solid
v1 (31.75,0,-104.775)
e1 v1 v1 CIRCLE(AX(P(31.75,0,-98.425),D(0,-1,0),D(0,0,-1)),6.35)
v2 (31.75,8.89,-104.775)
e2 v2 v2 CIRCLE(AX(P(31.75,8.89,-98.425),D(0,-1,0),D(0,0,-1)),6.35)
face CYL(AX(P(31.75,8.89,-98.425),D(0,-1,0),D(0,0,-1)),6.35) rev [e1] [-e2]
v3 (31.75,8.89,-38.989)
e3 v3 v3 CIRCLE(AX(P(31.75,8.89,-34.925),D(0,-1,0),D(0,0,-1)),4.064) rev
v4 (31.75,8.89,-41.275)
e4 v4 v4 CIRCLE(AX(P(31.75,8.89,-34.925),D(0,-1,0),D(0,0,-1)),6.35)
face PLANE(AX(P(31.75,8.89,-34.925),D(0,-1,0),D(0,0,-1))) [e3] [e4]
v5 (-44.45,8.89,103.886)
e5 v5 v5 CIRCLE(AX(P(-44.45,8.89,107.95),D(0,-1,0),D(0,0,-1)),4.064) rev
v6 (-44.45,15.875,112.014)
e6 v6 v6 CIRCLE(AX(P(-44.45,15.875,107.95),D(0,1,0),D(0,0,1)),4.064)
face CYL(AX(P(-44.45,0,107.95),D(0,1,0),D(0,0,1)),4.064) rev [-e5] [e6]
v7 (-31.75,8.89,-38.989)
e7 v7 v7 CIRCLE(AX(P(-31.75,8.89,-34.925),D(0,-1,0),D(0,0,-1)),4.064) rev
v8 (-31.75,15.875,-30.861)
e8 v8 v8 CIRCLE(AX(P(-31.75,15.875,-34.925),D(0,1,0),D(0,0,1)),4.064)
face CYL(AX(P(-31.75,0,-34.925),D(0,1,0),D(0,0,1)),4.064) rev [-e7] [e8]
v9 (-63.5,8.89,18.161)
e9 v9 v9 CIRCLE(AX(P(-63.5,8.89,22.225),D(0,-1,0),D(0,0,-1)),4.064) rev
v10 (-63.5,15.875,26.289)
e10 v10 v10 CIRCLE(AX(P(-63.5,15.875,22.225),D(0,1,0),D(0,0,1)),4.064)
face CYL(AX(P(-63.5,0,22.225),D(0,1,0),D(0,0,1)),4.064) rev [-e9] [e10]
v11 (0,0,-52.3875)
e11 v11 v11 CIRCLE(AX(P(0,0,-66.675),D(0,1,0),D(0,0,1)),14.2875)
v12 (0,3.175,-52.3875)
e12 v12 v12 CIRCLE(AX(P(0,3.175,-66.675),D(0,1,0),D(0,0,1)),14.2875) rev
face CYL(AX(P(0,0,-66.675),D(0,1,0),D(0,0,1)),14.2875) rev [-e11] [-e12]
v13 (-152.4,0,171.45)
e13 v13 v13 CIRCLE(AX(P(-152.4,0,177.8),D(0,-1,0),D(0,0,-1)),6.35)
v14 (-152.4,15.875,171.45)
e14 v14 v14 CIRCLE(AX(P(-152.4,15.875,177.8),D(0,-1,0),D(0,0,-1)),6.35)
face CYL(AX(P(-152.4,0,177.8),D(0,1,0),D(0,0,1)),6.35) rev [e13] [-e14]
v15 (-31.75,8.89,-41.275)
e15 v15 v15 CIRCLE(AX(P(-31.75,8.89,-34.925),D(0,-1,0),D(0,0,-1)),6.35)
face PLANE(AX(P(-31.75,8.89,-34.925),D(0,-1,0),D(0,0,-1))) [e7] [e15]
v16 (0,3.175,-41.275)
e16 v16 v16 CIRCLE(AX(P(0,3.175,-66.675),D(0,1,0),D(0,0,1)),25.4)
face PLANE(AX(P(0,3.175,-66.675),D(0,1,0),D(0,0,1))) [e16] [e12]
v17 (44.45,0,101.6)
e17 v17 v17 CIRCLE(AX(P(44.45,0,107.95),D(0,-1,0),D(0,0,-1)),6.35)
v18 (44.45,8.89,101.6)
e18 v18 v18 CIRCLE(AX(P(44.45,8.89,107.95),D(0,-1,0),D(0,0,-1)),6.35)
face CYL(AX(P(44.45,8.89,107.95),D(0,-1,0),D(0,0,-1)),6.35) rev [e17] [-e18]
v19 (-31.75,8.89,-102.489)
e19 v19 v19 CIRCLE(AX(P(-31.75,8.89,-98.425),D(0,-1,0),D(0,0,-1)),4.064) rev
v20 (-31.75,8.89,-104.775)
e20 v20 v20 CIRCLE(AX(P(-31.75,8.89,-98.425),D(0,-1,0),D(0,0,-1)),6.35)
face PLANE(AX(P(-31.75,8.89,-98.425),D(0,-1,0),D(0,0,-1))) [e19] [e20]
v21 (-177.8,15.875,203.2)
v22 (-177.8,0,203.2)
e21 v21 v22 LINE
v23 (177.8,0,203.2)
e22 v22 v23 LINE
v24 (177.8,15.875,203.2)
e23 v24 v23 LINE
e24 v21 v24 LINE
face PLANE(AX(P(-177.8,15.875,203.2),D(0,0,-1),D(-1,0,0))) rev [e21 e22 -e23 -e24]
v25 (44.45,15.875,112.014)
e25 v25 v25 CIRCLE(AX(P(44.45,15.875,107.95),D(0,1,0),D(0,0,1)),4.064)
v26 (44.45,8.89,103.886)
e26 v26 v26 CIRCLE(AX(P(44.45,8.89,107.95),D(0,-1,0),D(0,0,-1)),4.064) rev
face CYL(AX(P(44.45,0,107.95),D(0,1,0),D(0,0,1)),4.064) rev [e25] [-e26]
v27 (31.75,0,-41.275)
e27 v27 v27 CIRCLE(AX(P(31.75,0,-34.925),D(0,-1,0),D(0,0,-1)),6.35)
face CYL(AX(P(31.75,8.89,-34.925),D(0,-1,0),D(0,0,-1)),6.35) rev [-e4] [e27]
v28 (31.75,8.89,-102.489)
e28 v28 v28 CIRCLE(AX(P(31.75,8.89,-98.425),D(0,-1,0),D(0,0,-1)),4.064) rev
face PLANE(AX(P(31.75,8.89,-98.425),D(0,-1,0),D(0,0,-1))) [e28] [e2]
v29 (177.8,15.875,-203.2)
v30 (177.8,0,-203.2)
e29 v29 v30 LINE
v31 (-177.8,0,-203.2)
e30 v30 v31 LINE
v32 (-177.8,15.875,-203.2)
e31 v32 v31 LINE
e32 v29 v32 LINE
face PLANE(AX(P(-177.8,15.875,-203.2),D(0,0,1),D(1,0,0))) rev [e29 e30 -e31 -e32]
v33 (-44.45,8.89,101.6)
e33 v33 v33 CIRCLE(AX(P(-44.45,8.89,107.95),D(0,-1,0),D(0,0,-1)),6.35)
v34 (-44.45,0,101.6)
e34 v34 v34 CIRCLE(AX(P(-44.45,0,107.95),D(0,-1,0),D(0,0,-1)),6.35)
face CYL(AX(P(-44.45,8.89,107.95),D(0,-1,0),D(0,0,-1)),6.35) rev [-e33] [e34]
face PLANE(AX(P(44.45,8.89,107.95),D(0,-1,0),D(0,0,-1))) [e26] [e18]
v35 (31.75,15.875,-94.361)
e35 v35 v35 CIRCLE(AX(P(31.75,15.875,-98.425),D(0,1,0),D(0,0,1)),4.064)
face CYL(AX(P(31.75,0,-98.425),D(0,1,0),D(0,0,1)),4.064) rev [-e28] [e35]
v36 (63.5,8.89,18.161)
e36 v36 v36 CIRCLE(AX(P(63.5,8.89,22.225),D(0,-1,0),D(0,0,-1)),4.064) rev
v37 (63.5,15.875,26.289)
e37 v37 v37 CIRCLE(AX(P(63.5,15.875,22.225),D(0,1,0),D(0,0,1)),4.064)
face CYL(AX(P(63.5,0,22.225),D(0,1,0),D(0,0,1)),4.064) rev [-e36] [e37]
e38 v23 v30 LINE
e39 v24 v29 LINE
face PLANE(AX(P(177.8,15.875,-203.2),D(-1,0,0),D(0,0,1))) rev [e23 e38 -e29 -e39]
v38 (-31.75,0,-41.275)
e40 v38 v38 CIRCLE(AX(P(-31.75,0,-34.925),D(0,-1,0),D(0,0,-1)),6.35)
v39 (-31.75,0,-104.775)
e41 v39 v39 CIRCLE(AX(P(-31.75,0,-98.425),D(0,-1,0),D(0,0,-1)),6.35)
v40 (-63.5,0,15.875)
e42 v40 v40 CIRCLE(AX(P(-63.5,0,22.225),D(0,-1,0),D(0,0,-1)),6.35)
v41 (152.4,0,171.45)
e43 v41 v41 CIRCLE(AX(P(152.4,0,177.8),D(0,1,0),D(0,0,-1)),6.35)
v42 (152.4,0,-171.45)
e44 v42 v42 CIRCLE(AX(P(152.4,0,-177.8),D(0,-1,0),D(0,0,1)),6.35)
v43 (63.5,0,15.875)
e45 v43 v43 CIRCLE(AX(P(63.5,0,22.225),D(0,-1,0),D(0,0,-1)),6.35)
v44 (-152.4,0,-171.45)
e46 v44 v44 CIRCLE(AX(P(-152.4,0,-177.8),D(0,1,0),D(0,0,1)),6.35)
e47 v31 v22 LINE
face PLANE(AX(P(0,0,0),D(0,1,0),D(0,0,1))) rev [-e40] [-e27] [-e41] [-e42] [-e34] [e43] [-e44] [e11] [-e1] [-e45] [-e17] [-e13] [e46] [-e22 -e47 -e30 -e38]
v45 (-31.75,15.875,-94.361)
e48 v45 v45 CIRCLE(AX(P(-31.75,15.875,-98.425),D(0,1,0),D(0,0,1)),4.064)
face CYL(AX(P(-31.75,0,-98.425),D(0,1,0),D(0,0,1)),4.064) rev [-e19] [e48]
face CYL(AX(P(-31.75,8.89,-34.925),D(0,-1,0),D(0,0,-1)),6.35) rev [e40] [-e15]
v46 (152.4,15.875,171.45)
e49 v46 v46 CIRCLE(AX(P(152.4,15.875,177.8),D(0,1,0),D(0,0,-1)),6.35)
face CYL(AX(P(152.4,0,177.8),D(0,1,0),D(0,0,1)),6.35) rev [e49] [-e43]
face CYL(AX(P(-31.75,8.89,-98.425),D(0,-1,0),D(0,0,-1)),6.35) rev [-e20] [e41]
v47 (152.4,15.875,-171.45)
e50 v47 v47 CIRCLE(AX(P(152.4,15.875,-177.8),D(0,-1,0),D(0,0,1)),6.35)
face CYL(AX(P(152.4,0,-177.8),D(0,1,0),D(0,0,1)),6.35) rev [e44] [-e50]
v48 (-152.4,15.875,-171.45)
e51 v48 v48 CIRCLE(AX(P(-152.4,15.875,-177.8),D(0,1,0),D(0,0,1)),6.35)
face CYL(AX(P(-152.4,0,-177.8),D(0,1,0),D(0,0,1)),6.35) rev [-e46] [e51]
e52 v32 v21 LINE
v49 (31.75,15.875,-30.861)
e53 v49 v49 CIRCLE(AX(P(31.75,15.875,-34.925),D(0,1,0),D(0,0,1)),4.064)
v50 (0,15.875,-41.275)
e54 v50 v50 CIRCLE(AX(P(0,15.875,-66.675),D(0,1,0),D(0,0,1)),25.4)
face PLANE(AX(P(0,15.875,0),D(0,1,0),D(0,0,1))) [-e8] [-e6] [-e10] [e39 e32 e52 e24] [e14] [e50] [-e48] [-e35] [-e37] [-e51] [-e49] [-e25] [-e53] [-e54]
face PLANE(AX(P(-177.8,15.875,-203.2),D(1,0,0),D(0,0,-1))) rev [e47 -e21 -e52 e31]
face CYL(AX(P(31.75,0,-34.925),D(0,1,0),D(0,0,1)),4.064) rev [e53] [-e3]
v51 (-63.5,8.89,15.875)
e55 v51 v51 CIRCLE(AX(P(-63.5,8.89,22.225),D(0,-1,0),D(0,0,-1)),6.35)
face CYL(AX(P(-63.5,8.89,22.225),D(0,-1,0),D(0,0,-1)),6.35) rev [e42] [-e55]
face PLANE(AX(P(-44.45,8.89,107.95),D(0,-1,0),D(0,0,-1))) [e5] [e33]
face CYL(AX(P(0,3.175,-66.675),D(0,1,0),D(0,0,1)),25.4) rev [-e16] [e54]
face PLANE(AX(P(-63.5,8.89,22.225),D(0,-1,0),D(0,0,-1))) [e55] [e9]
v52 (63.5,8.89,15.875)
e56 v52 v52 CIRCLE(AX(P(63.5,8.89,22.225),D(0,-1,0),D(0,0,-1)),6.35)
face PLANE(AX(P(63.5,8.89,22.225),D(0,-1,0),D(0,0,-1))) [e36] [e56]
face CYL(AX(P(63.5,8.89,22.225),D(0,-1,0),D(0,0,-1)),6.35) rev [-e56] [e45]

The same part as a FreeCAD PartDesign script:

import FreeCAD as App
import Part
import Sketcher
from FreeCAD import Vector
Q = App.Units.Quantity


def add_polygon(sketch, points):
    """Adds a closed chain of lines whose ends are joined by coincident constraints."""
    first, n = sketch.GeometryCount, len(points)
    for a, b in zip(points, points[1:] + points[:1]):
        sketch.addGeometry(Part.LineSegment(App.Vector(*a, 0), App.Vector(*b, 0)), False)
    for i in range(n):
        sketch.addConstraint(Sketcher.Constraint("Coincident", first + i, 2, first + (i + 1) % n, 1))

doc = App.newDocument("Part")
params = doc.addObject("Spreadsheet::Sheet", "Params")
for row, (alias, value) in enumerate([
    ("sketch1_width", "14 in"),
    ("sketch1_height", "16 in"),
    ("pad1_length", "0.625 in"),
    ("sketch2_diameter", "0.5 in"),
    ("sketch3_diameter", "0.5 in"),
    ("sketch4_diameter", "0.32 in"),
    ("sketch4_diameter2", "1.125 in"),
    ("sketch5_diameter", "2 in"),
    ("pocket4_length", "0.5 in"),
    ("sketch6_diameter", "0.5 in"),
    ("pocket5_length", "0.35 in"),
], start=1):
    params.set(f"A{row}", alias)
    params.set(f"B{row}", "=" + value)
    params.setAlias(f"B{row}", alias)

body = doc.addObject("PartDesign::Body", "Body")

# Sketch on XZ plane
sketch1 = body.newObject("Sketcher::SketchObject", "Sketch")
sketch1.AttachmentSupport = (doc.getObject("XZ_Plane"), [""])
sketch1.MapMode = "FlatFace"
add_polygon(sketch1, [(-178, -203), (-178, 203), (178, 203), (178, -203)])  # lines 0-3
sketch1.addConstraint(Sketcher.Constraint("Vertical", 0))
sketch1.addConstraint(Sketcher.Constraint("Horizontal", 1))
sketch1.addConstraint(Sketcher.Constraint("Vertical", 2))
sketch1.addConstraint(Sketcher.Constraint("Horizontal", 3))
sketch1.addConstraint(Sketcher.Constraint("Symmetric", 0, 2, 2, 2, -1, 1))
sketch1.addConstraint(Sketcher.Constraint("DistanceX", 1, 1, 1, 2, Q("14 in")))
sketch1.addConstraint(Sketcher.Constraint("DistanceY", 0, 1, 0, 2, Q("16 in")))
sketch1.setExpression("Constraints[9]", "Params.sketch1_width")
sketch1.setExpression("Constraints[10]", "Params.sketch1_height")
pad1 = body.newObject("PartDesign::Pad", "Pad")
pad1.Profile = sketch1
pad1.setExpression("Length", "Params.pad1_length")
pad1.Reversed = True

# Sketch on XZ plane
sketch2 = body.newObject("Sketcher::SketchObject", "Sketch001")
sketch2.AttachmentSupport = (doc.getObject("XZ_Plane"), [""])
sketch2.MapMode = "FlatFace"
sketch2.AttachmentOffset = App.Placement(Vector(0, 0, -0.625 * 25.4), App.Rotation())
sketch2.addGeometry(Part.Circle(Vector(-152, -178, 0), Vector(0, 0, 1), 6), False)
sketch2.addConstraint(Sketcher.Constraint("Diameter", 0, Q("0.5 in")))
sketch2.addConstraint(Sketcher.Constraint("DistanceX", 0, 3, -1, 1, Q("6 in")))
sketch2.addConstraint(Sketcher.Constraint("DistanceY", 0, 3, -1, 1, Q("7 in")))
sketch2.setExpression("Constraints[0]", "Params.sketch2_diameter")
pocket1 = body.newObject("PartDesign::Pocket", "Pocket")
pocket1.Profile = sketch2
pocket1.Type = "ThroughAll"
pocket1.Reversed = True
doc.recompute()

mirrored = body.newObject("PartDesign::Mirrored", "Mirrored")
mirrored.Originals = [pocket1]
mirrored.MirrorPlane = (doc.getObject("YZ_Plane"), [""])
body.Tip = mirrored
doc.recompute()

mirrored2 = body.newObject("PartDesign::Mirrored", "Mirrored001")
mirrored2.Originals = [pocket1]
mirrored2.MirrorPlane = (doc.getObject("XY_Plane"), [""])
body.Tip = mirrored2

# Sketch on XZ plane
sketch3 = body.newObject("Sketcher::SketchObject", "Sketch002")
sketch3.AttachmentSupport = (doc.getObject("XZ_Plane"), [""])
sketch3.MapMode = "FlatFace"
sketch3.AttachmentOffset = App.Placement(Vector(0, 0, -0.625 * 25.4), App.Rotation())
sketch3.addGeometry(Part.Circle(Vector(152, 178, 0), Vector(0, 0, 1), 6), False)
sketch3.addConstraint(Sketcher.Constraint("Diameter", 0, Q("0.5 in")))
sketch3.addConstraint(Sketcher.Constraint("DistanceX", -1, 1, 0, 3, Q("6 in")))
sketch3.addConstraint(Sketcher.Constraint("DistanceY", -1, 1, 0, 3, Q("7 in")))
sketch3.setExpression("Constraints[0]", "Params.sketch3_diameter")
pocket2 = body.newObject("PartDesign::Pocket", "Pocket001")
pocket2.Profile = sketch3
pocket2.Type = "ThroughAll"
pocket2.Reversed = True

# Sketch on XZ plane
sketch4 = body.newObject("Sketcher::SketchObject", "Sketch003")
sketch4.AttachmentSupport = (doc.getObject("XZ_Plane"), [""])
sketch4.MapMode = "FlatFace"
sketch4.AttachmentOffset = App.Placement(Vector(0, 0, -0.625 * 25.4), App.Rotation())
sketch4.addGeometry(Part.Circle(Vector(0, -66.7, 0), Vector(0, 0, 1), 14.3), False)
sketch4.addGeometry(Part.Circle(Vector(-63.5, 22.2, 0), Vector(0, 0, 1), 4.1), False)
sketch4.addGeometry(Part.Circle(Vector(63.5, 22.2, 0), Vector(0, 0, 1), 4.1), False)
sketch4.addGeometry(Part.Circle(Vector(44.5, 108, 0), Vector(0, 0, 1), 4.1), False)
sketch4.addGeometry(Part.Circle(Vector(-44.5, 108, 0), Vector(0, 0, 1), 4.1), False)
sketch4.addGeometry(Part.Circle(Vector(-31.8, -98.4, 0), Vector(0, 0, 1), 4.1), False)
sketch4.addGeometry(Part.Circle(Vector(-31.8, -34.9, 0), Vector(0, 0, 1), 4.1), False)
sketch4.addGeometry(Part.Circle(Vector(31.8, -98.4, 0), Vector(0, 0, 1), 4.1), False)
sketch4.addGeometry(Part.Circle(Vector(31.8, -34.9, 0), Vector(0, 0, 1), 4.1), False)
sketch4.addConstraint(Sketcher.Constraint("Equal", 1, 2))
sketch4.addConstraint(Sketcher.Constraint("Equal", 2, 3))
sketch4.addConstraint(Sketcher.Constraint("Equal", 3, 4))
sketch4.addConstraint(Sketcher.Constraint("Equal", 4, 5))
sketch4.addConstraint(Sketcher.Constraint("Equal", 5, 6))
sketch4.addConstraint(Sketcher.Constraint("Equal", 6, 7))
sketch4.addConstraint(Sketcher.Constraint("Equal", 7, 8))
sketch4.addConstraint(Sketcher.Constraint("Symmetric", 1, 3, 2, 3, -2))
sketch4.addConstraint(Sketcher.Constraint("Symmetric", 3, 3, 4, 3, -2))
sketch4.addConstraint(Sketcher.Constraint("Symmetric", 5, 3, 7, 3, -2))
sketch4.addConstraint(Sketcher.Constraint("Symmetric", 6, 3, 8, 3, -2))
sketch4.addConstraint(Sketcher.Constraint("PointOnObject", 0, 3, -2))
sketch4.addConstraint(Sketcher.Constraint("Vertical", 5, 3, 6, 3))
sketch4.addConstraint(Sketcher.Constraint("Diameter", 1, Q("0.32 in")))
sketch4.addConstraint(Sketcher.Constraint("Diameter", 0, Q("1.125 in")))
sketch4.addConstraint(Sketcher.Constraint("DistanceX", 1, 3, 2, 3, Q("5 in")))
sketch4.addConstraint(Sketcher.Constraint("DistanceX", 5, 3, 3, 3, Q("3 in")))
sketch4.addConstraint(Sketcher.Constraint("DistanceY", 0, 3, 1, 3, Q("3.5 in")))
sketch4.addConstraint(Sketcher.Constraint("DistanceX", 4, 3, 3, 3, Q("3.5 in")))
sketch4.addConstraint(Sketcher.Constraint("DistanceY", 5, 3, 6, 3, Q("2.5 in")))
sketch4.addConstraint(Sketcher.Constraint("DistanceY", -1, 1, 3, 3, Q("4.25 in")))
sketch4.addConstraint(Sketcher.Constraint("DistanceY", 5, 3, 0, 3, Q("1.25 in")))
sketch4.addConstraint(Sketcher.Constraint("DistanceY", 0, 3, -1, 1, Q("2.625 in")))
sketch4.setExpression("Constraints[13]", "Params.sketch4_diameter")
sketch4.setExpression("Constraints[14]", "Params.sketch4_diameter2")
pocket3 = body.newObject("PartDesign::Pocket", "Pocket002")
pocket3.Profile = sketch4
pocket3.Type = "ThroughAll"
pocket3.Reversed = True

# Sketch on XZ plane
sketch5 = body.newObject("Sketcher::SketchObject", "Sketch004")
sketch5.AttachmentSupport = (doc.getObject("XZ_Plane"), [""])
sketch5.MapMode = "FlatFace"
sketch5.AttachmentOffset = App.Placement(Vector(0, 0, -0.625 * 25.4), App.Rotation())
sketch5.addGeometry(Part.Circle(Vector(0, -67, 0), Vector(0, 0, 1), 25), False)
sketch5.addConstraint(Sketcher.Constraint("PointOnObject", 0, 3, -2))
sketch5.addConstraint(Sketcher.Constraint("Diameter", 0, Q("2 in")))
sketch5.addConstraint(Sketcher.Constraint("DistanceY", 0, 3, -1, 1, Q("2.625 in")))
sketch5.setExpression("Constraints[1]", "Params.sketch5_diameter")
pocket4 = body.newObject("PartDesign::Pocket", "Pocket003")
pocket4.Profile = sketch5
pocket4.setExpression("Length", "Params.pocket4_length")
pocket4.Reversed = True

# Sketch on XZ plane
sketch6 = body.newObject("Sketcher::SketchObject", "Sketch005")
sketch6.AttachmentSupport = (doc.getObject("XZ_Plane"), [""])
sketch6.MapMode = "FlatFace"
sketch6.addGeometry(Part.Circle(Vector(-32, -98, 0), Vector(0, 0, 1), 6), False)
sketch6.addGeometry(Part.Circle(Vector(32, -98, 0), Vector(0, 0, 1), 6), False)
sketch6.addGeometry(Part.Circle(Vector(32, -35, 0), Vector(0, 0, 1), 6), False)
sketch6.addGeometry(Part.Circle(Vector(-32, -35, 0), Vector(0, 0, 1), 6), False)
sketch6.addGeometry(Part.Circle(Vector(-64, 22, 0), Vector(0, 0, 1), 6), False)
sketch6.addGeometry(Part.Circle(Vector(64, 22, 0), Vector(0, 0, 1), 6), False)
sketch6.addGeometry(Part.Circle(Vector(44, 108, 0), Vector(0, 0, 1), 6), False)
sketch6.addGeometry(Part.Circle(Vector(-44, 108, 0), Vector(0, 0, 1), 6), False)
sketch6.addConstraint(Sketcher.Constraint("Equal", 0, 1))
sketch6.addConstraint(Sketcher.Constraint("Equal", 1, 2))
sketch6.addConstraint(Sketcher.Constraint("Equal", 2, 3))
sketch6.addConstraint(Sketcher.Constraint("Equal", 3, 4))
sketch6.addConstraint(Sketcher.Constraint("Equal", 4, 5))
sketch6.addConstraint(Sketcher.Constraint("Equal", 5, 6))
sketch6.addConstraint(Sketcher.Constraint("Equal", 6, 7))
sketch6.addConstraint(Sketcher.Constraint("Symmetric", 0, 3, 1, 3, -2))
sketch6.addConstraint(Sketcher.Constraint("Symmetric", 2, 3, 3, 3, -2))
sketch6.addConstraint(Sketcher.Constraint("Symmetric", 4, 3, 5, 3, -2))
sketch6.addConstraint(Sketcher.Constraint("Symmetric", 6, 3, 7, 3, -2))
sketch6.addConstraint(Sketcher.Constraint("Vertical", 1, 3, 2, 3))
sketch6.addConstraint(Sketcher.Constraint("Diameter", 0, Q("0.5 in")))
sketch6.addConstraint(Sketcher.Constraint("DistanceX", 4, 3, 5, 3, Q("5 in")))
sketch6.addConstraint(Sketcher.Constraint("DistanceX", 3, 3, 6, 3, Q("3 in")))
sketch6.addConstraint(Sketcher.Constraint("DistanceX", 0, 3, 1, 3, Q("2.5 in")))
sketch6.addConstraint(Sketcher.Constraint("DistanceY", 1, 3, 2, 3, Q("2.5 in")))
sketch6.addConstraint(Sketcher.Constraint("DistanceY", -1, 1, 6, 3, Q("4.25 in")))
sketch6.addConstraint(Sketcher.Constraint("DistanceY", 3, 3, 4, 3, Q("2.25 in")))
sketch6.addConstraint(Sketcher.Constraint("DistanceY", 0, 3, -1, 1, Q("3.875 in")))
sketch6.setExpression("Constraints[12]", "Params.sketch6_diameter")
pocket5 = body.newObject("PartDesign::Pocket", "Pocket004")
pocket5.Profile = sketch6
pocket5.setExpression("Length", "Params.pocket5_length")

doc.recompute()
